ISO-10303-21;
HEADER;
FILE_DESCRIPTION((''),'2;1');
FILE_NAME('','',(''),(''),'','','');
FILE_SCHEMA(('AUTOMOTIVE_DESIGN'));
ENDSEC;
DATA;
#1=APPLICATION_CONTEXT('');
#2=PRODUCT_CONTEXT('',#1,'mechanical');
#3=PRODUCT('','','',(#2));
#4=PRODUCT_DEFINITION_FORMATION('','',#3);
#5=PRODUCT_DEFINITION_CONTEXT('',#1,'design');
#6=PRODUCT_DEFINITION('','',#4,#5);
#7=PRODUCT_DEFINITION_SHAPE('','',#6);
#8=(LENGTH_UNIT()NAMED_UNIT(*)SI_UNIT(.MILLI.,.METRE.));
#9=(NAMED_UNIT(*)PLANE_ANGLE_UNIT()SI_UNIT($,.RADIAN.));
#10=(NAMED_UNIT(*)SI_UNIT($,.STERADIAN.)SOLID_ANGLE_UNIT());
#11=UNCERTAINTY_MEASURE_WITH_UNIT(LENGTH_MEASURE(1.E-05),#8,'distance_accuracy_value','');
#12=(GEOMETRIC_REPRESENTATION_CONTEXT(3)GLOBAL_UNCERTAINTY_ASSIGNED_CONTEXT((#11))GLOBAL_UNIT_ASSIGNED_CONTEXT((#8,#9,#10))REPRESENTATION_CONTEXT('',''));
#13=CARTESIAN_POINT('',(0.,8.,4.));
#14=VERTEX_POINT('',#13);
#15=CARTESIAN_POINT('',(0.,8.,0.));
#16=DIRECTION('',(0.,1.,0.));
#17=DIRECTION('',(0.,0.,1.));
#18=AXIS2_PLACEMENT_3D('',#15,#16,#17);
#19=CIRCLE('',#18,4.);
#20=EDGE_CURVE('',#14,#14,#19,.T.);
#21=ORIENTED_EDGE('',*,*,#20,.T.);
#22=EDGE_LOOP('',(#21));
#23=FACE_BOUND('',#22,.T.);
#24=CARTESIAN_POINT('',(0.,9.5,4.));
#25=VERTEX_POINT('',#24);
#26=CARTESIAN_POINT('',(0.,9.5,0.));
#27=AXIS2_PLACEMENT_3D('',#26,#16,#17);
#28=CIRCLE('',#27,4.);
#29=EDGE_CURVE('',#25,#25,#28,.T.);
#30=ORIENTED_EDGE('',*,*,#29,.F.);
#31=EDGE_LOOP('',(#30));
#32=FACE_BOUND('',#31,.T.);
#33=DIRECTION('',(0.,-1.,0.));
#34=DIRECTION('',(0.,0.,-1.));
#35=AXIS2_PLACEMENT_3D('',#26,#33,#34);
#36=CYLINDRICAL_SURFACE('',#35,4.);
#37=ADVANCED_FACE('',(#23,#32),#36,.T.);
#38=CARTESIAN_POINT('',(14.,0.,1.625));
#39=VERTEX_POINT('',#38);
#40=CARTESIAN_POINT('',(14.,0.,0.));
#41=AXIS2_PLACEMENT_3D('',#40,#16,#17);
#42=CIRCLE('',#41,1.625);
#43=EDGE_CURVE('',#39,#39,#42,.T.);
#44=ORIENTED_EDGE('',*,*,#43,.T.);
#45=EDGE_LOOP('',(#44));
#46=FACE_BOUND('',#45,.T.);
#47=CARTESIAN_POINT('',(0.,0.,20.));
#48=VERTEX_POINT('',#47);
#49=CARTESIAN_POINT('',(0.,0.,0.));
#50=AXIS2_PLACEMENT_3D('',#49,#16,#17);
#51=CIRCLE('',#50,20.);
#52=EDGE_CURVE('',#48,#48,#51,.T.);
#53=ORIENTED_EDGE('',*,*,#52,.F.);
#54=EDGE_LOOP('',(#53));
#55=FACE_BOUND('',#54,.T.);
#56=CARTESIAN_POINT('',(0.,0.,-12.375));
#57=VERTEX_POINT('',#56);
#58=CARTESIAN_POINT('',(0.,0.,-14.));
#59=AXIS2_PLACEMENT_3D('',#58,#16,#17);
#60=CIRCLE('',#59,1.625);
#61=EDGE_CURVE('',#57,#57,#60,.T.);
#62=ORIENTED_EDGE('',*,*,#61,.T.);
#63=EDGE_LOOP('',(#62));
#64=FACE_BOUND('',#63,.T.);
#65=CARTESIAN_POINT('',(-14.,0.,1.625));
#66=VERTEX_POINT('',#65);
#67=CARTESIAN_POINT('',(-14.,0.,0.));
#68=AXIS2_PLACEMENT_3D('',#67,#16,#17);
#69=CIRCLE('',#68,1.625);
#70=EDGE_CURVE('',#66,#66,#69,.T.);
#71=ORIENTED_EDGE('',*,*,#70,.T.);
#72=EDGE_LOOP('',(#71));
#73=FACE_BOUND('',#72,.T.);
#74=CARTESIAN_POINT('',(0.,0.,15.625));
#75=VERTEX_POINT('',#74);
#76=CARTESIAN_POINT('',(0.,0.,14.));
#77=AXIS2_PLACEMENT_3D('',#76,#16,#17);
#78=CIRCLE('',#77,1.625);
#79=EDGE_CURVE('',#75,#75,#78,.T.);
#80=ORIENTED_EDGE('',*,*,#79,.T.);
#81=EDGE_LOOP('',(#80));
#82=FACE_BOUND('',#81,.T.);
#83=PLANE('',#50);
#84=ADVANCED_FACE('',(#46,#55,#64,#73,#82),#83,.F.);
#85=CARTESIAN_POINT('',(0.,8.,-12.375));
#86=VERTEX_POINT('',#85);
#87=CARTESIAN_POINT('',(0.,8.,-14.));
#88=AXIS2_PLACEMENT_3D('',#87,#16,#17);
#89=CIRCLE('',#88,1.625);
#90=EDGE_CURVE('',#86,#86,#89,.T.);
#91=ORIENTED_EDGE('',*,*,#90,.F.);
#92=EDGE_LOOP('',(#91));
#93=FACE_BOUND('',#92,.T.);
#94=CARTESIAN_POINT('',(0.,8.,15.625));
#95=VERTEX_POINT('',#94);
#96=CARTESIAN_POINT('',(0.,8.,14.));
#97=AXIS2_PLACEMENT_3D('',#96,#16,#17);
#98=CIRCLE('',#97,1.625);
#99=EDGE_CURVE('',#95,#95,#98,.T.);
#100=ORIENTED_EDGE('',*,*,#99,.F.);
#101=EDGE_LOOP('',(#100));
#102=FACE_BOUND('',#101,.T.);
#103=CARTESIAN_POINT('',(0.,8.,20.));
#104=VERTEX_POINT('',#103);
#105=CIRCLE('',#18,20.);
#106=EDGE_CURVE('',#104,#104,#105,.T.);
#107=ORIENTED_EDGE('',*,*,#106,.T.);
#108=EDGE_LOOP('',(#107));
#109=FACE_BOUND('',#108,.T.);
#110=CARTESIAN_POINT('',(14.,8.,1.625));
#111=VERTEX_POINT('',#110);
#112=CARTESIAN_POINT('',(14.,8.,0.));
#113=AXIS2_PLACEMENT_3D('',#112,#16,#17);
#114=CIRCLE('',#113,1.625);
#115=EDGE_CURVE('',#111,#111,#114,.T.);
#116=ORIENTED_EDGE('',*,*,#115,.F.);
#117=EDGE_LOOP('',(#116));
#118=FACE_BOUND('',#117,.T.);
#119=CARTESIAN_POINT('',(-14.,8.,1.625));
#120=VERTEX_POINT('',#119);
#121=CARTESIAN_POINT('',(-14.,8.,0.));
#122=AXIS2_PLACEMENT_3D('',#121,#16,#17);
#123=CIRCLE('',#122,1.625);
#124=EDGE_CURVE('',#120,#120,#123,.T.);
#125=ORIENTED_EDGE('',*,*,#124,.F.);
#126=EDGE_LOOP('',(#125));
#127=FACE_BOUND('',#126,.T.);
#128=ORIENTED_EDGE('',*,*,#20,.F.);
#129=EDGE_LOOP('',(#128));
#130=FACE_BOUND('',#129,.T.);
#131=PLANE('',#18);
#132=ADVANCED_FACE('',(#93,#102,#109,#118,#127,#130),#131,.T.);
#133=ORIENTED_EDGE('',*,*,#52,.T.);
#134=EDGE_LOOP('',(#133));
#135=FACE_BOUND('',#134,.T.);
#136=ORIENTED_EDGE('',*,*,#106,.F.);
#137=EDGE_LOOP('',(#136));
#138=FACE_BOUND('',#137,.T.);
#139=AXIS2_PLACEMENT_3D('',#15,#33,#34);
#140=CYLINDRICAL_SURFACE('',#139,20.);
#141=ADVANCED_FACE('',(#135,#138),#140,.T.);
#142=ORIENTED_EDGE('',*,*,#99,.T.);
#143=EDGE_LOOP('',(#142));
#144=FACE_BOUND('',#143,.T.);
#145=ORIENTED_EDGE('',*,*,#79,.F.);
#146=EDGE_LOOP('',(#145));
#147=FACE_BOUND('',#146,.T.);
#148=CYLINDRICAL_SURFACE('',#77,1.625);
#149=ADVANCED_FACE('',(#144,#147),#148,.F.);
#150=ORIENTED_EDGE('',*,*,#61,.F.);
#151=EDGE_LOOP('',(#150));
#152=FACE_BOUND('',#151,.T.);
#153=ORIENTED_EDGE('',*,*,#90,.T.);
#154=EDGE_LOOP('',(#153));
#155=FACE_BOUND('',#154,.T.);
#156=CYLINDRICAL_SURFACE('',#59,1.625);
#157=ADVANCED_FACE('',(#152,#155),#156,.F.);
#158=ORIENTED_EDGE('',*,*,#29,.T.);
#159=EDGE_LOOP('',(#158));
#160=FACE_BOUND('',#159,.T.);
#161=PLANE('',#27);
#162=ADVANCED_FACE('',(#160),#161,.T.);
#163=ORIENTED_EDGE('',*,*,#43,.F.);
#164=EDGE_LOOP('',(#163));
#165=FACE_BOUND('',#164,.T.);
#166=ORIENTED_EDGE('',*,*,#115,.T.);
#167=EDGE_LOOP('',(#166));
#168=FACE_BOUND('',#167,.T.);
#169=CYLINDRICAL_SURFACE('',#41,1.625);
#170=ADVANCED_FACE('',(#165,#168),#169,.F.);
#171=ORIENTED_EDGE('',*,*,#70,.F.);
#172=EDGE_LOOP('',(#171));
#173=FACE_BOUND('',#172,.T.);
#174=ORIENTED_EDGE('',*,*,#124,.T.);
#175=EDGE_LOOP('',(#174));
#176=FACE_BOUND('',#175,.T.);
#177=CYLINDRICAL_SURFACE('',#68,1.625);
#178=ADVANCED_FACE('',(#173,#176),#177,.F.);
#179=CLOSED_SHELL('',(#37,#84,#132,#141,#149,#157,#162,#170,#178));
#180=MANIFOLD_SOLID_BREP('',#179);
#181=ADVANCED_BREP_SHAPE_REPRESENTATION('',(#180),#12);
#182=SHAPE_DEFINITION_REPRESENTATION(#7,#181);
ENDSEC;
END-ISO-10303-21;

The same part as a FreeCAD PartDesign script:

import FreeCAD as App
import Part
import Sketcher
from FreeCAD import Vector
Q = App.Units.Quantity

doc = App.newDocument("Part")
params = doc.addObject("Spreadsheet::Sheet", "Params")
for row, (alias, value) in enumerate([
    ("sketch1_diameter", "40 mm"),
    ("pad1_length", "8 mm"),
    ("sketch2_diameter", "8 mm"),
    ("pad2_length", "1.5 mm"),
    ("sketch3_diameter", "3.25 mm"),
], start=1):
    params.set(f"A{row}", alias)
    params.set(f"B{row}", "=" + value)
    params.setAlias(f"B{row}", alias)

body = doc.addObject("PartDesign::Body", "Body")

# Sketch on XZ plane
sketch1 = body.newObject("Sketcher::SketchObject", "Sketch")
sketch1.AttachmentSupport = (doc.getObject("XZ_Plane"), [""])
sketch1.MapMode = "FlatFace"
sketch1.addGeometry(Part.Circle(Vector(0, 0, 0), Vector(0, 0, 1), 20), False)
sketch1.addConstraint([
    Sketcher.Constraint("Coincident", 0, 3, -1, 1),
    Sketcher.Constraint("Diameter", 0, Q("40 mm")),
])
sketch1.setExpression("Constraints[1]", "Params.sketch1_diameter")
pad1 = body.newObject("PartDesign::Pad", "Pad")
pad1.Profile = sketch1
pad1.setExpression("Length", "Params.pad1_length")
pad1.Reversed = True

# Sketch on XZ plane
sketch2 = body.newObject("Sketcher::SketchObject", "Sketch001")
sketch2.AttachmentSupport = (doc.getObject("XZ_Plane"), [""])
sketch2.MapMode = "FlatFace"
sketch2.AttachmentOffset = App.Placement(Vector(0, 0, -8), App.Rotation())
sketch2.addGeometry(Part.Circle(Vector(0, 0, 0), Vector(0, 0, 1), 4), False)
sketch2.addConstraint([
    Sketcher.Constraint("Coincident", 0, 3, -1, 1),
    Sketcher.Constraint("Diameter", 0, Q("8 mm")),
])
sketch2.setExpression("Constraints[1]", "Params.sketch2_diameter")
pad2 = body.newObject("PartDesign::Pad", "Pad001")
pad2.Profile = sketch2
pad2.setExpression("Length", "Params.pad2_length")
pad2.Reversed = True

# Sketch on XZ plane
sketch3 = body.newObject("Sketcher::SketchObject", "Sketch002")
sketch3.AttachmentSupport = (doc.getObject("XZ_Plane"), [""])
sketch3.MapMode = "FlatFace"
sketch3.AttachmentOffset = App.Placement(Vector(0, 0, -8), App.Rotation())
sketch3.addGeometry([
    Part.Circle(Vector(-14, 0, 0), Vector(0, 0, 1), 1.625),
    Part.Circle(Vector(14, 0, 0), Vector(0, 0, 1), 1.625),
    Part.Circle(Vector(0, -14, 0), Vector(0, 0, 1), 1.625),
    Part.Circle(Vector(0, 14, 0), Vector(0, 0, 1), 1.625),
], False)
sketch3.addConstraint([
    Sketcher.Constraint("Equal", 0, 1),
    Sketcher.Constraint("Equal", 1, 2),
    Sketcher.Constraint("Equal", 2, 3),
    Sketcher.Constraint("Symmetric", 0, 3, 1, 3, -1, 1),
    Sketcher.Constraint("Symmetric", 2, 3, 3, 3, -1, 1),
    Sketcher.Constraint("PointOnObject", 0, 3, -1),
    Sketcher.Constraint("PointOnObject", 2, 3, -2),
    Sketcher.Constraint("Diameter", 0, Q("3.25 mm")),
    Sketcher.Constraint("DistanceX", 0, 3, -1, 1, Q("14 mm")),
    Sketcher.Constraint("DistanceY", 2, 3, -1, 1, Q("14 mm")),
])
sketch3.setExpression("Constraints[7]", "Params.sketch3_diameter")
pocket1 = body.newObject("PartDesign::Pocket", "Pocket")
pocket1.Profile = sketch3
pocket1.Type = "ThroughAll"
pocket1.Reversed = True

doc.recompute()
